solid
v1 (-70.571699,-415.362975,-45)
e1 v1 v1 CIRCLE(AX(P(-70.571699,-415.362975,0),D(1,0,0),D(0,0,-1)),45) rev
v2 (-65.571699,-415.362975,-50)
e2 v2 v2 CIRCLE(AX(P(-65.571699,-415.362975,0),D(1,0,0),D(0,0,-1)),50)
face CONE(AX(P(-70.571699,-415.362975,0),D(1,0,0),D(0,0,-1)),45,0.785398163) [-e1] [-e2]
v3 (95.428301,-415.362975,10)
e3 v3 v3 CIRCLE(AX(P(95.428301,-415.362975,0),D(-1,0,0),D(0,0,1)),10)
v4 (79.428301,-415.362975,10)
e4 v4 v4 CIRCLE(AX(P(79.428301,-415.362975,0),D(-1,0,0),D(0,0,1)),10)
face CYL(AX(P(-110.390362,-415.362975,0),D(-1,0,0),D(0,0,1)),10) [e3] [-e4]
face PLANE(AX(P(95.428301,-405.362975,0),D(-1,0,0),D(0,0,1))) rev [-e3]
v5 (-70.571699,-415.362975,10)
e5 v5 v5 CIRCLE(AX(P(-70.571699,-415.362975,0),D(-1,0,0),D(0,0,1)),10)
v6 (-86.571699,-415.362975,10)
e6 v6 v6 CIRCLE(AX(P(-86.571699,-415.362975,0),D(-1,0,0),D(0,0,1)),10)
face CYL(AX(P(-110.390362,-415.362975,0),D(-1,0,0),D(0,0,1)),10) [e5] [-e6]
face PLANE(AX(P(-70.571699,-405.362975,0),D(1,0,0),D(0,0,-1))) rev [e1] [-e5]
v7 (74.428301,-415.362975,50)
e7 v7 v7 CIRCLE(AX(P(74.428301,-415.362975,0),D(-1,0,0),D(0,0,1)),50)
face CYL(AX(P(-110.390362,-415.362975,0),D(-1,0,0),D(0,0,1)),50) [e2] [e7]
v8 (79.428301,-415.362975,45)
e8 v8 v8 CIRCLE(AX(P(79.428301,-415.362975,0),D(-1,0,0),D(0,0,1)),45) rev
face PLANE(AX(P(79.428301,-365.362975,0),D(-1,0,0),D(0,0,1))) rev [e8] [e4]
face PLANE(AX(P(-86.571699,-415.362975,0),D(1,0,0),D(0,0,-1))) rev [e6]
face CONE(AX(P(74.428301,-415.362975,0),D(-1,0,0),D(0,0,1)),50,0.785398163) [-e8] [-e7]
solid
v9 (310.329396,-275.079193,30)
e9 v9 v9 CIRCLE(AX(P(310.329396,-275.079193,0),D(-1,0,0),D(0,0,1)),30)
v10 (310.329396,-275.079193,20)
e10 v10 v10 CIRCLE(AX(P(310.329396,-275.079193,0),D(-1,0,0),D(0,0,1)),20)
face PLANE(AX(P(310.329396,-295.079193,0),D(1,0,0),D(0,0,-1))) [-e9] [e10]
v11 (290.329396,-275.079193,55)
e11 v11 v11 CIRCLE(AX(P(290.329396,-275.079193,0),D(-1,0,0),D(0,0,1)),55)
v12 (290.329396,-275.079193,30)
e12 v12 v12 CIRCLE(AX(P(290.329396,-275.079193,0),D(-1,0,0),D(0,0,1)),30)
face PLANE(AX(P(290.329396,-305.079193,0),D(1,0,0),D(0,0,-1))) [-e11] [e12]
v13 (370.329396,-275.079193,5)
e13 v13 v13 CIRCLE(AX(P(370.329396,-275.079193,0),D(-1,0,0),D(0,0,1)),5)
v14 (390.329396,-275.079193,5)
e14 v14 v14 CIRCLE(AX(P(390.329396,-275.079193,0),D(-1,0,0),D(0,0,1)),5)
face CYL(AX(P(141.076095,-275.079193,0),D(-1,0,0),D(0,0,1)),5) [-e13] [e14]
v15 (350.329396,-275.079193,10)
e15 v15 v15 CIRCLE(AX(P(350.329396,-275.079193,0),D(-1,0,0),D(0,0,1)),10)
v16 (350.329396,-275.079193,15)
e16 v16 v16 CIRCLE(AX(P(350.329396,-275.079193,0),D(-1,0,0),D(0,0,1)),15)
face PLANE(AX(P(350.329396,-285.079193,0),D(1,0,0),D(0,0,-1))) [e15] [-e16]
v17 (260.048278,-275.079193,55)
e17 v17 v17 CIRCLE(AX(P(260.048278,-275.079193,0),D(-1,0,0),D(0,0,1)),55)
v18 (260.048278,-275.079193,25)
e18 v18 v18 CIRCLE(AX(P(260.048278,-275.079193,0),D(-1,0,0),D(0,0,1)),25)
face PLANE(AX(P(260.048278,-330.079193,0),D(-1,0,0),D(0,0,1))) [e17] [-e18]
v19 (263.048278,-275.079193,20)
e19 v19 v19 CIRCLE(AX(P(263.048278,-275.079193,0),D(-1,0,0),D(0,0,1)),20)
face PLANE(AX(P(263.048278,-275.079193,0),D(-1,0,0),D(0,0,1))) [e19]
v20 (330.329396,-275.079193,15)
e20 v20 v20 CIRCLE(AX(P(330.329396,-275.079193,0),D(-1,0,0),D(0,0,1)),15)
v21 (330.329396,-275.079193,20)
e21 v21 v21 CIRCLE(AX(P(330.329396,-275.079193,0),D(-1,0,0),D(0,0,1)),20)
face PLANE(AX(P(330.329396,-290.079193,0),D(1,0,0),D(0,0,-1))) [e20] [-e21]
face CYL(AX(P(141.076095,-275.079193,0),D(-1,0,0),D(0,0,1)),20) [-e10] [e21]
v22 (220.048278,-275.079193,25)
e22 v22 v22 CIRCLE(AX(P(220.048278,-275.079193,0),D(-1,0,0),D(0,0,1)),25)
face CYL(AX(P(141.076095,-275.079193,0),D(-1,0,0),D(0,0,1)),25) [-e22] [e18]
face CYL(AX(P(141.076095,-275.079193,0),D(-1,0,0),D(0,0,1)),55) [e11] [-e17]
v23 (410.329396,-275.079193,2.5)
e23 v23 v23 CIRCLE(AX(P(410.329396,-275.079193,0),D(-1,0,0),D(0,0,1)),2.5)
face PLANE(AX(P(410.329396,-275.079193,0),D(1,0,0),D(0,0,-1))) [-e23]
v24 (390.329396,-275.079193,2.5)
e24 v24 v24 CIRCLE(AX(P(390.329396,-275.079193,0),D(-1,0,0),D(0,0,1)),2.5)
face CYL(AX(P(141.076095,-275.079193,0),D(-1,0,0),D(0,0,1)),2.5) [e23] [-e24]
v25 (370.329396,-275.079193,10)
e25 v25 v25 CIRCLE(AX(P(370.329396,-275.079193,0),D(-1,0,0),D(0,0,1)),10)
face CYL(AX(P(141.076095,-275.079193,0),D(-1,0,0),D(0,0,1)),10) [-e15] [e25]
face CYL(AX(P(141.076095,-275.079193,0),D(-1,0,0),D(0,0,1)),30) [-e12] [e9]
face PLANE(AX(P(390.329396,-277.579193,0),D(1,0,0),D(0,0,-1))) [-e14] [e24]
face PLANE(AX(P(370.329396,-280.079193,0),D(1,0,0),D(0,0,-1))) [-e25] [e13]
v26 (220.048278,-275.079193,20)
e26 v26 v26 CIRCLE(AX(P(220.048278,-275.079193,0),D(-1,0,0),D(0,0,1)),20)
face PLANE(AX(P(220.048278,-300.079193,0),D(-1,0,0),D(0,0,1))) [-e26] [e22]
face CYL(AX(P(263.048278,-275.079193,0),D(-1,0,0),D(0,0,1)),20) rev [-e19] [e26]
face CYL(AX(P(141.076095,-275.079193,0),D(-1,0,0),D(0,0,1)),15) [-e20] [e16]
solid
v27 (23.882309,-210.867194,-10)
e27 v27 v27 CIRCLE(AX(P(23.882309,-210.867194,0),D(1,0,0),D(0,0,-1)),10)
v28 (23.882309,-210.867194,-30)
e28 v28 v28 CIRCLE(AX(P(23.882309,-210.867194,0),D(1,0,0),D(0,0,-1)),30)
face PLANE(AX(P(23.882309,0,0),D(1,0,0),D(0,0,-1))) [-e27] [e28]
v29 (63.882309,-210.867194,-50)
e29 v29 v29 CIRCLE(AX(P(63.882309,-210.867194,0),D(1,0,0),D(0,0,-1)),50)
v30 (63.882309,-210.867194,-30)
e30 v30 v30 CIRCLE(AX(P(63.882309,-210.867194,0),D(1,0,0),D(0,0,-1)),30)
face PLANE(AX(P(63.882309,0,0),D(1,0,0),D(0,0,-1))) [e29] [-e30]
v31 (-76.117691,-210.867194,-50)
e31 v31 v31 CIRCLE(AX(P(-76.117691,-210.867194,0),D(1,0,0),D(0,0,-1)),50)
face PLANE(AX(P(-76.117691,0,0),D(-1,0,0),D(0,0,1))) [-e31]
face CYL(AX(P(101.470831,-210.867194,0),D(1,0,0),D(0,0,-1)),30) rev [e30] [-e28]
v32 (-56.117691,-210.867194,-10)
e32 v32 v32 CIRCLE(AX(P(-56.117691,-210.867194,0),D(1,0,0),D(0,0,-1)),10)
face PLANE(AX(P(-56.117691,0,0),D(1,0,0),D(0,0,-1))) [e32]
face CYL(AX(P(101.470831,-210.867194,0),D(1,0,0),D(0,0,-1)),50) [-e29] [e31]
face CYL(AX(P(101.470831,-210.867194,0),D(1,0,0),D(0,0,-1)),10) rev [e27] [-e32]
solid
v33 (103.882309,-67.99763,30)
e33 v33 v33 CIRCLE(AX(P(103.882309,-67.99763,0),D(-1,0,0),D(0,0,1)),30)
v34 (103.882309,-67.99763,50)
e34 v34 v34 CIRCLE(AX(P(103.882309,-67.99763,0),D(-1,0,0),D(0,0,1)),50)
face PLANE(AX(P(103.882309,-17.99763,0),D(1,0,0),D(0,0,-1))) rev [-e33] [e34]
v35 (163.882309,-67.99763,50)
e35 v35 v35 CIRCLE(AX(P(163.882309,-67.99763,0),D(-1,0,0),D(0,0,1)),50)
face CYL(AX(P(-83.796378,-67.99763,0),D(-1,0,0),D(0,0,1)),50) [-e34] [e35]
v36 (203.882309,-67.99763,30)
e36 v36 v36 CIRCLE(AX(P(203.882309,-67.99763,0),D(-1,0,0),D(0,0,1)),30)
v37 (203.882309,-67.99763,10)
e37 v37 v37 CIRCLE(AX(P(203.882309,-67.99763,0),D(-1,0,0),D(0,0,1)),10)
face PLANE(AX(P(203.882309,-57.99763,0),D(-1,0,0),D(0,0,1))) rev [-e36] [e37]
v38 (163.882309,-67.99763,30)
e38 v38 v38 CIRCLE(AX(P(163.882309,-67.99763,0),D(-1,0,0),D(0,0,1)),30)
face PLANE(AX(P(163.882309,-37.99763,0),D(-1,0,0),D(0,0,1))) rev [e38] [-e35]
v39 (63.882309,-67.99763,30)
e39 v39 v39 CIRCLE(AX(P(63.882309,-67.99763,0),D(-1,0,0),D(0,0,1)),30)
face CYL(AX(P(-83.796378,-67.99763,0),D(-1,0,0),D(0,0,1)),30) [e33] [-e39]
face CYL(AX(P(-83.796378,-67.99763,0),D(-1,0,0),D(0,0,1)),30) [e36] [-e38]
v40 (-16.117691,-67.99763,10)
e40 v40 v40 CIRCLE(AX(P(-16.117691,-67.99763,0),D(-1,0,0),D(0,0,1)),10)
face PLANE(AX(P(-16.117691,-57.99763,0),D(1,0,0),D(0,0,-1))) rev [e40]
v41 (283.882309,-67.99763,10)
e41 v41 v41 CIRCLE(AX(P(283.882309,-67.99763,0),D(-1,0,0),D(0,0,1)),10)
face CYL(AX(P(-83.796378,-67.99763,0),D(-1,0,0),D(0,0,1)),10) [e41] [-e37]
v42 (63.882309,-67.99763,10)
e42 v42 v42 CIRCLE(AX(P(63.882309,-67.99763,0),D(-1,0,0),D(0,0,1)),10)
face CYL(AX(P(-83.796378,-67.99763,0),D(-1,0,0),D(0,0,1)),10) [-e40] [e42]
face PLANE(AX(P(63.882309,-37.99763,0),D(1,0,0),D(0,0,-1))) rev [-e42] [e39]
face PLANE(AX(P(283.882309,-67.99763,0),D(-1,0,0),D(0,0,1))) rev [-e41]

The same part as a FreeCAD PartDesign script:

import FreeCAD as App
import Part
import Sketcher
from FreeCAD import Vector
Q = App.Units.Quantity


def edges_at(feature, points):
    """Names of the edges that pass closest to the given points."""
    edges = feature.Shape.Edges
    near = lambda p: min(range(len(edges)), key=lambda i: edges[i].distToShape(Part.Vertex(*p))[0])
    return sorted({f"Edge{near(p) + 1}" for p in points})


def add_polygon(sketch, points):
    """Adds a closed chain of lines whose ends are joined by coincident constraints."""
    first, n = sketch.GeometryCount, len(points)
    for a, b in zip(points, points[1:] + points[:1]):
        sketch.addGeometry(Part.LineSegment(App.Vector(*a, 0), App.Vector(*b, 0)), False)
    for i in range(n):
        sketch.addConstraint(Sketcher.Constraint("Coincident", first + i, 2, first + (i + 1) % n, 1))

doc = App.newDocument("Part")
body = doc.addObject("PartDesign::Body", "Body")

sketch1 = doc.addObject("Sketcher::SketchObject", "Sketch")
body.addObject(sketch1)
sketch1.AttachmentSupport = (doc.XY_Plane, [""])
sketch1.MapMode = "FlatFace"
add_polygon(sketch1, [(-16.117691, -67.99763), (283.882309, -67.99763), (283.882309, -57.99763), (203.882309, -57.99763), (203.882309, -37.99763), (163.882309, -37.99763), (163.882309, -17.99763), (103.882309, -17.99763), (103.882309, -37.99763), (63.882309, -37.99763), (63.882309, -57.99763), (-16.117691, -57.99763)])
sketch1.addGeometry(Part.LineSegment(Vector(-16.117691, -67.99763, 0), Vector(283.882309, -67.99763, 0)), True)
sketch1.addConstraint(Sketcher.Constraint("Horizontal", 0))
sketch1.addConstraint(Sketcher.Constraint("Vertical", 1))
sketch1.addConstraint(Sketcher.Constraint("Horizontal", 2))
sketch1.addConstraint(Sketcher.Constraint("Vertical", 3))
sketch1.addConstraint(Sketcher.Constraint("Horizontal", 4))
sketch1.addConstraint(Sketcher.Constraint("Vertical", 5))
sketch1.addConstraint(Sketcher.Constraint("Horizontal", 6))
sketch1.addConstraint(Sketcher.Constraint("Vertical", 7))
sketch1.addConstraint(Sketcher.Constraint("Horizontal", 8))
sketch1.addConstraint(Sketcher.Constraint("Vertical", 9))
sketch1.addConstraint(Sketcher.Constraint("Horizontal", 10))
sketch1.addConstraint(Sketcher.Constraint("Vertical", 11))
sketch1.addConstraint(Sketcher.Constraint("Horizontal", 12))
sketch1.addConstraint(Sketcher.Constraint("Coincident", 12, 1, 11, 2))
sketch1.addConstraint(Sketcher.Constraint("Horizontal", 4, 2, 7, 2))
sketch1.addConstraint(Sketcher.Constraint("Horizontal", 2, 2, 9, 2))
sketch1.addConstraint(Sketcher.Constraint("Vertical", 1, 2, 12, 2))
sketch1.addConstraint(Sketcher.Constraint("Equal", 4, 8))
sketch1.addConstraint(Sketcher.Constraint("Equal", 2, 10))
sketch1.addConstraint(Sketcher.Constraint("Equal", 3, 5))
sketch1.addConstraint(Sketcher.Constraint("DistanceX", 0, 1, 0, 2, Q("300 mm")))
sketch1.addConstraint(Sketcher.Constraint("DistanceX", 2, 2, 2, 1, Q("80 mm")))
sketch1.addConstraint(Sketcher.Constraint("DistanceX", 4, 2, 4, 1, Q("40 mm")))
sketch1.addConstraint(Sketcher.Constraint("DistanceY", 1, 1, 1, 2, Q("10 mm")))
sketch1.addConstraint(Sketcher.Constraint("DistanceY", 3, 1, 3, 2, Q("20 mm")))
sketch1.addConstraint(Sketcher.Constraint("DistanceX", -1, 1, 0, 2, Q("283.882309 mm")))
sketch1.addConstraint(Sketcher.Constraint("DistanceY", 0, 2, -1, 1, Q("67.99763 mm")))
revolution = doc.addObject("PartDesign::Revolution", "Revolution")
body.addObject(revolution)
revolution.Profile = sketch1
revolution.ReferenceAxis = (sketch1, ["Axis0"])
revolution.Angle = 360
body2 = doc.addObject("PartDesign::Body", "Body001")

sketch2 = doc.addObject("Sketcher::SketchObject", "Sketch001")
body2.addObject(sketch2)
sketch2.AttachmentSupport = (doc.getObject("XY_Plane001"), [""])
sketch2.MapMode = "FlatFace"
add_polygon(sketch2, [(-56.117691, -210.867194), (-76.117691, -210.867194), (-76.117691, -260.867194), (63.882309, -260.867194), (63.882309, -240.867194), (23.882309, -240.867194), (23.882309, -220.867194), (-56.117691, -220.867194)])
sketch2.addGeometry(Part.LineSegment(Vector(63.882309, -210.867194, 0), Vector(-76.117691, -210.867194, 0)), True)
sketch2.addConstraint(Sketcher.Constraint("Horizontal", 0))
sketch2.addConstraint(Sketcher.Constraint("Vertical", 1))
sketch2.addConstraint(Sketcher.Constraint("Horizontal", 2))
sketch2.addConstraint(Sketcher.Constraint("Vertical", 3))
sketch2.addConstraint(Sketcher.Constraint("Horizontal", 4))
sketch2.addConstraint(Sketcher.Constraint("Vertical", 5))
sketch2.addConstraint(Sketcher.Constraint("Horizontal", 6))
sketch2.addConstraint(Sketcher.Constraint("Vertical", 7))
sketch2.addConstraint(Sketcher.Constraint("Horizontal", 8))
sketch2.addConstraint(Sketcher.Constraint("Coincident", 8, 2, 0, 2))
sketch2.addConstraint(Sketcher.Constraint("Vertical", 3, 2, 8, 1))
sketch2.addConstraint(Sketcher.Constraint("Equal", 0, 3))
sketch2.addConstraint(Sketcher.Constraint("Equal", 3, 5))
sketch2.addConstraint(Sketcher.Constraint("DistanceX", 0, 2, 0, 1, Q("20 mm")))
sketch2.addConstraint(Sketcher.Constraint("DistanceX", 2, 1, 2, 2, Q("140 mm")))
sketch2.addConstraint(Sketcher.Constraint("DistanceX", 4, 2, 4, 1, Q("40 mm")))
sketch2.addConstraint(Sketcher.Constraint("DistanceY", 1, 2, 1, 1, Q("50 mm")))
sketch2.addConstraint(Sketcher.Constraint("DistanceX", 0, 2, -1, 1, Q("76.117691 mm")))
sketch2.addConstraint(Sketcher.Constraint("DistanceY", 0, 2, -1, 1, Q("210.867194 mm")))
revolution2 = doc.addObject("PartDesign::Revolution", "Revolution001")
body2.addObject(revolution2)
revolution2.Profile = sketch2
revolution2.ReferenceAxis = (sketch2, ["Axis0"])
revolution2.Angle = 360
body3 = doc.addObject("PartDesign::Body", "Body002")

sketch3 = doc.addObject("Sketcher::SketchObject", "Sketch002")
body3.addObject(sketch3)
sketch3.AttachmentSupport = (doc.getObject("XY_Plane002"), [""])
sketch3.MapMode = "FlatFace"
add_polygon(sketch3, [(410.329396, -277.579193), (410.329396, -275.079193), (220.048278, -275.079193), (220.048278, -300.079193), (260.048278, -300.079193), (260.048278, -330.079193), (290.329396, -330.079193), (290.329396, -305.079193), (310.329396, -305.079193), (310.329396, -295.079193), (330.329396, -295.079193), (330.329396, -290.079193), (350.329396, -290.079193), (350.329396, -285.079193), (370.329396, -285.079193), (370.329396, -280.079193), (390.329396, -280.079193), (390.329396, -277.579193)])
sketch3.addGeometry(Part.LineSegment(Vector(220.048278, -275.079193, 0), Vector(410.329396, -275.079193, 0)), True)
sketch3.addConstraint(Sketcher.Constraint("Vertical", 0))
sketch3.addConstraint(Sketcher.Constraint("Horizontal", 1))
sketch3.addConstraint(Sketcher.Constraint("Vertical", 2))
sketch3.addConstraint(Sketcher.Constraint("Horizontal", 3))
sketch3.addConstraint(Sketcher.Constraint("Vertical", 4))
sketch3.addConstraint(Sketcher.Constraint("Horizontal", 5))
sketch3.addConstraint(Sketcher.Constraint("Vertical", 6))
sketch3.addConstraint(Sketcher.Constraint("Horizontal", 7))
sketch3.addConstraint(Sketcher.Constraint("Vertical", 8))
sketch3.addConstraint(Sketcher.Constraint("Horizontal", 9))
sketch3.addConstraint(Sketcher.Constraint("Vertical", 10))
sketch3.addConstraint(Sketcher.Constraint("Horizontal", 11))
sketch3.addConstraint(Sketcher.Constraint("Vertical", 12))
sketch3.addConstraint(Sketcher.Constraint("Horizontal", 13))
sketch3.addConstraint(Sketcher.Constraint("Vertical", 14))
sketch3.addConstraint(Sketcher.Constraint("Horizontal", 15))
sketch3.addConstraint(Sketcher.Constraint("Vertical", 16))
sketch3.addConstraint(Sketcher.Constraint("Horizontal", 17))
sketch3.addConstraint(Sketcher.Constraint("Horizontal", 18))
sketch3.addConstraint(Sketcher.Constraint("Coincident", 18, 1, 1, 2))
sketch3.addConstraint(Sketcher.Constraint("Vertical", 17, 2, 18, 2))
sketch3.addConstraint(Sketcher.Constraint("Equal", 7, 9))
sketch3.addConstraint(Sketcher.Constraint("Equal", 9, 11))
sketch3.addConstraint(Sketcher.Constraint("Equal", 11, 13))
sketch3.addConstraint(Sketcher.Constraint("Equal", 13, 15))
sketch3.addConstraint(Sketcher.Constraint("Equal", 15, 17))
sketch3.addConstraint(Sketcher.Constraint("Equal", 2, 6))
sketch3.addConstraint(Sketcher.Constraint("Equal", 10, 12))
sketch3.addConstraint(Sketcher.Constraint("Equal", 12, 14))
sketch3.addConstraint(Sketcher.Constraint("Equal", 0, 16))
sketch3.addConstraint(Sketcher.Constraint("DistanceX", 3, 1, 3, 2, Q("40 mm")))
sketch3.addConstraint(Sketcher.Constraint("DistanceX", 7, 1, 7, 2, Q("20 mm")))
sketch3.addConstraint(Sketcher.Constraint("DistanceY", 2, 2, 2, 1, Q("25 mm")))
sketch3.addConstraint(Sketcher.Constraint("DistanceY", 4, 2, 4, 1, Q("30 mm")))
sketch3.addConstraint(Sketcher.Constraint("DistanceY", 8, 1, 8, 2, Q("10 mm")))
sketch3.addConstraint(Sketcher.Constraint("DistanceY", 10, 1, 10, 2, Q("5 mm")))
sketch3.addConstraint(Sketcher.Constraint("DistanceX", 1, 2, 1, 1, Q("190.281118 mm")))
sketch3.addConstraint(Sketcher.Constraint("DistanceX", -1, 1, 1, 2, Q("220.048278 mm")))
sketch3.addConstraint(Sketcher.Constraint("DistanceY", 0, 2, -1, 1, Q("275.079193 mm")))
revolution3 = doc.addObject("PartDesign::Revolution", "Revolution002")
body3.addObject(revolution3)
revolution3.Profile = sketch3
revolution3.ReferenceAxis = (sketch3, ["Axis0"])
revolution3.Angle = 360

sketch4 = doc.addObject("Sketcher::SketchObject", "Sketch003")
body3.addObject(sketch4)
sketch4.AttachmentSupport = (doc.getObject("YZ_Plane002"), [""])
sketch4.MapMode = "FlatFace"
sketch4.AttachmentOffset = App.Placement(Vector(0, 0, 220.048278), App.Rotation())
sketch4.addGeometry(Part.Circle(Vector(-275.079193, 0, 0), Vector(0, 0, 1), 20), False)
sketch4.addConstraint(Sketcher.Constraint("PointOnObject", 0, 3, -1))
sketch4.addConstraint(Sketcher.Constraint("Diameter", 0, Q("40 mm")))
sketch4.addConstraint(Sketcher.Constraint("DistanceX", 0, 3, -1, 1, Q("275.079193 mm")))
pocket1 = doc.addObject("PartDesign::Pocket", "Pocket")
body3.addObject(pocket1)
pocket1.Profile = sketch4
pocket1.Length = 43
pocket1.Reversed = True
body4 = doc.addObject("PartDesign::Body", "Body003")

sketch5 = doc.addObject("Sketcher::SketchObject", "Sketch004")
body4.addObject(sketch5)
sketch5.AttachmentSupport = (doc.getObject("XY_Plane003"), [""])
sketch5.MapMode = "FlatFace"
add_polygon(sketch5, [(-86.571699, -405.362975), (-86.571699, -415.362975), (95.428301, -415.362975), (95.428301, -405.362975), (79.428301, -405.362975), (79.428301, -365.362975), (-70.571699, -365.362975), (-70.571699, -405.362975)])
sketch5.addGeometry(Part.LineSegment(Vector(-86.571699, -415.362975, 0), Vector(95.428301, -415.362975, 0)), True)
sketch5.addConstraint(Sketcher.Constraint("Vertical", 0))
sketch5.addConstraint(Sketcher.Constraint("Horizontal", 1))
sketch5.addConstraint(Sketcher.Constraint("Vertical", 2))
sketch5.addConstraint(Sketcher.Constraint("Horizontal", 3))
sketch5.addConstraint(Sketcher.Constraint("Vertical", 4))
sketch5.addConstraint(Sketcher.Constraint("Horizontal", 5))
sketch5.addConstraint(Sketcher.Constraint("Vertical", 6))
sketch5.addConstraint(Sketcher.Constraint("Horizontal", 7))
sketch5.addConstraint(Sketcher.Constraint("Horizontal", 8))
sketch5.addConstraint(Sketcher.Constraint("Coincident", 8, 1, 0, 2))
sketch5.addConstraint(Sketcher.Constraint("Horizontal", 3, 2, 6, 2))
sketch5.addConstraint(Sketcher.Constraint("Vertical", 2, 2, 8, 2))
sketch5.addConstraint(Sketcher.Constraint("Equal", 3, 7))
sketch5.addConstraint(Sketcher.Constraint("DistanceX", 1, 1, 1, 2, Q("182 mm")))
sketch5.addConstraint(Sketcher.Constraint("DistanceX", 3, 2, 3, 1, Q("16 mm")))
sketch5.addConstraint(Sketcher.Constraint("DistanceY", 0, 2, 0, 1, Q("10 mm")))
sketch5.addConstraint(Sketcher.Constraint("DistanceY", 4, 1, 4, 2, Q("40 mm")))
sketch5.addConstraint(Sketcher.Constraint("DistanceX", 0, 2, -1, 1, Q("86.571699 mm")))
sketch5.addConstraint(Sketcher.Constraint("DistanceY", 0, 2, -1, 1, Q("415.362975 mm")))
revolution4 = doc.addObject("PartDesign::Revolution", "Revolution003")
body4.addObject(revolution4)
revolution4.Profile = sketch5
revolution4.ReferenceAxis = (sketch5, ["Axis0"])
revolution4.Angle = 360
doc.recompute()

chamfer = doc.addObject("PartDesign::Chamfer", "Chamfer")
body4.addObject(chamfer)
chamfer.Base = (revolution4, edges_at(revolution4, [(-70.572, -465.363, 0)]))
chamfer.Size = 5
doc.recompute()

chamfer2 = doc.addObject("PartDesign::Chamfer", "Chamfer001")
body4.addObject(chamfer2)
chamfer2.Base = (chamfer, edges_at(chamfer, [(79.428, -465.363, 0)]))
chamfer2.Size = 5

doc.recompute()
